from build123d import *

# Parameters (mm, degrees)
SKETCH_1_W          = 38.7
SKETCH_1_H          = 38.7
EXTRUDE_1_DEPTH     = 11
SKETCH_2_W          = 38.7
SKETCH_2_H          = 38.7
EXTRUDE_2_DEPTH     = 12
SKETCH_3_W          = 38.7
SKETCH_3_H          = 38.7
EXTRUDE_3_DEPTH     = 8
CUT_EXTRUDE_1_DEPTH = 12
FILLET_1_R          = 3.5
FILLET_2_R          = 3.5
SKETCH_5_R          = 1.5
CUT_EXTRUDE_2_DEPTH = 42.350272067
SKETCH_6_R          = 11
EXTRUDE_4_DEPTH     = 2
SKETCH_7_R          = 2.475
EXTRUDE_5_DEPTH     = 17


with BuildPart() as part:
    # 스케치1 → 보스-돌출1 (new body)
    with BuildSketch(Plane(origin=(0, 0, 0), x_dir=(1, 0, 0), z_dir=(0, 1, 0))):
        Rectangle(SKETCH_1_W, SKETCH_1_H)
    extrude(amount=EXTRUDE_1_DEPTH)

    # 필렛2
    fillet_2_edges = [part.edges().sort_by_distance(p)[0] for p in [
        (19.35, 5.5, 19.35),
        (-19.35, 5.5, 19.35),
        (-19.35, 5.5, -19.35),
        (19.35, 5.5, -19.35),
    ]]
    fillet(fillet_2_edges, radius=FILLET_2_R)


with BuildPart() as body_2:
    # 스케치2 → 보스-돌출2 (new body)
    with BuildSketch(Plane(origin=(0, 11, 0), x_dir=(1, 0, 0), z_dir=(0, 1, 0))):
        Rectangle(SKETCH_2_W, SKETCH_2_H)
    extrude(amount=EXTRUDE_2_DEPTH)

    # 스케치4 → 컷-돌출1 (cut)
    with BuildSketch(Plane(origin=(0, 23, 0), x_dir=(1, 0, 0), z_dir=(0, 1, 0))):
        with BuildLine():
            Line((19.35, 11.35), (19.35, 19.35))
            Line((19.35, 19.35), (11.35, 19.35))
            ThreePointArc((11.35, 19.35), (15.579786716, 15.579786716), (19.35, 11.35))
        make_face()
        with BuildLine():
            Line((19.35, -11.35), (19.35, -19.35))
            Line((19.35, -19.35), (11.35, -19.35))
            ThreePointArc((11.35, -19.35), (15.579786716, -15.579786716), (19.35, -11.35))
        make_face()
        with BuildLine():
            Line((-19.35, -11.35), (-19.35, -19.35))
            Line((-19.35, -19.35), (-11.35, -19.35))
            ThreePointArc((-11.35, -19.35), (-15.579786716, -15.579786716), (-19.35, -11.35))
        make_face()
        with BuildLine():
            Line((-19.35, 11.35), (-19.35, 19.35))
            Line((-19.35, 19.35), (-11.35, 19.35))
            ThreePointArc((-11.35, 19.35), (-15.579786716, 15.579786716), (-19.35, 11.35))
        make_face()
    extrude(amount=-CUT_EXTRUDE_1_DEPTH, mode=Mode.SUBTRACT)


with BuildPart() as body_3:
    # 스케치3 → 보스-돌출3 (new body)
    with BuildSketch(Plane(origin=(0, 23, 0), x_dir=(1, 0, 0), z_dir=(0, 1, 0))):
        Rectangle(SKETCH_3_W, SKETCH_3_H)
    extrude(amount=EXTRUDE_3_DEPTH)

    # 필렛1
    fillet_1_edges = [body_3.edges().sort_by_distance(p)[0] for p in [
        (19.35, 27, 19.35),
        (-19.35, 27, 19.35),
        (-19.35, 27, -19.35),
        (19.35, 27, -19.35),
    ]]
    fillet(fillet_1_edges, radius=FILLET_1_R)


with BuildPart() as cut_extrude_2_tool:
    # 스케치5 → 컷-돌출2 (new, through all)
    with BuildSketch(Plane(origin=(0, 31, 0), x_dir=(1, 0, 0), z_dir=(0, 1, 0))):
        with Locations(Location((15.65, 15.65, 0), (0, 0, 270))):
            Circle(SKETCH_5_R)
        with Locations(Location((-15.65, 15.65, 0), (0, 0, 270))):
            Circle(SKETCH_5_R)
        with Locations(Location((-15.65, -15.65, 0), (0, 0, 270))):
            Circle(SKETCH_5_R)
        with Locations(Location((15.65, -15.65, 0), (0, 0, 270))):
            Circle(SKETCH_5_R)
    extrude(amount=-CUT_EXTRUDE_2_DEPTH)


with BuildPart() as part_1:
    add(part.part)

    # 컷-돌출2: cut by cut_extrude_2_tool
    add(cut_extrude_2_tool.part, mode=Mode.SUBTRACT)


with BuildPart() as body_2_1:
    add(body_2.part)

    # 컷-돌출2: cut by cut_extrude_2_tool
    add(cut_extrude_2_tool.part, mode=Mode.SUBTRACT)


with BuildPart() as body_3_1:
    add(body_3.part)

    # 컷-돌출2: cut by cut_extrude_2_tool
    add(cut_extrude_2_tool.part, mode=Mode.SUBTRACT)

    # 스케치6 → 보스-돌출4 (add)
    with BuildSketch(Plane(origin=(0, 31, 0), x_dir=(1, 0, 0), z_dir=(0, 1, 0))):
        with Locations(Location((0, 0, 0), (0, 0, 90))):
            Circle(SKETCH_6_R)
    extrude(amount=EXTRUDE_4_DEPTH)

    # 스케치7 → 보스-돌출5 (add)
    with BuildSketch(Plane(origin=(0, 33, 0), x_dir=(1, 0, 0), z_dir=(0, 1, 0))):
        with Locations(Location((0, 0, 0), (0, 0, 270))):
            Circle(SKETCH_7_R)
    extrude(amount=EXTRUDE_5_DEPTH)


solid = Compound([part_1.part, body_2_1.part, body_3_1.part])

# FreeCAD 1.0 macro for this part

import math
import FreeCAD as App
import Part
import Sketcher

V = App.Vector
Q = App.Units.Quantity


def edges_at(feature, points):
    """Names of the edges that pass closest to the given points."""
    edges = feature.Shape.Edges
    near = lambda p: min(range(len(edges)), key=lambda i: edges[i].distToShape(Part.Vertex(*p))[0])
    return sorted({f"Edge{near(p) + 1}" for p in points})

doc = App.newDocument("Part")
params = doc.addObject("Spreadsheet::Sheet", "Params")
for row, (alias, value) in enumerate([
    ("sketch1_width", "38.7 mm"),
    ("pad1_length", "11 mm"),
    ("fillet_radius", "3.5 mm"),
    ("sketch2_width", "38.7 mm"),
    ("pad2_length", "12 mm"),
    ("sketch3_width", "8 mm"),
    ("pocket1_length", "12 mm"),
    ("sketch4_width", "38.7 mm"),
    ("pad3_length", "8 mm"),
    ("fillet2_radius", "3.5 mm"),
    ("sketch5_diameter", "3 mm"),
    ("pad4_length", "42.350272 mm"),
    ("sketch6_diameter", "22 mm"),
    ("pad5_length", "2 mm"),
    ("sketch7_diameter", "4.95 mm"),
    ("pad6_length", "17 mm"),
], start=1):
    params.set(f"A{row}", alias)
    params.set(f"B{row}", "=" + value)
    params.setAlias(f"B{row}", alias)

body = doc.addObject("PartDesign::Body", "Body")

# Sketch on XZ plane
sketch1 = body.newObject("Sketcher::SketchObject", "Sketch")
sketch1.AttachmentSupport = (doc.getObject("XZ_Plane"), [""])
sketch1.MapMode = "FlatFace"
sketch1.addGeometry(Part.LineSegment(V(-19, -19, 0), V(-19, 19, 0)), False)
sketch1.addGeometry(Part.LineSegment(V(-19, 19, 0), V(19, 19, 0)), False)
sketch1.addGeometry(Part.LineSegment(V(19, 19, 0), V(19, -19, 0)), False)
sketch1.addGeometry(Part.LineSegment(V(19, -19, 0), V(-19, -19, 0)), False)
sketch1.addConstraint(Sketcher.Constraint("Coincident", 0, 2, 1, 1))
sketch1.addConstraint(Sketcher.Constraint("Coincident", 1, 2, 2, 1))
sketch1.addConstraint(Sketcher.Constraint("Coincident", 2, 2, 3, 1))
sketch1.addConstraint(Sketcher.Constraint("Coincident", 3, 2, 0, 1))
sketch1.addConstraint(Sketcher.Constraint("Vertical", 0))
sketch1.addConstraint(Sketcher.Constraint("Horizontal", 1))
sketch1.addConstraint(Sketcher.Constraint("Vertical", 2))
sketch1.addConstraint(Sketcher.Constraint("Horizontal", 3))
sketch1.addConstraint(Sketcher.Constraint("Symmetric", 0, 2, 2, 2, -1, 1))
sketch1.addConstraint(Sketcher.Constraint("Equal", 3, 0))
sketch1.addConstraint(Sketcher.Constraint("DistanceX", 1, 1, 1, 2, Q("38.7 mm")))
sketch1.setExpression("Constraints[10]", "Params.sketch1_width")
pad1 = body.newObject("PartDesign::Pad", "Pad")
pad1.Profile = sketch1
pad1.setExpression("Length", "Params.pad1_length")
pad1.Reversed = True
doc.recompute()

fillet = body.newObject("PartDesign::Fillet", "Fillet")
fillet.Base = (pad1, edges_at(pad1, [
    (19.35, 5.5, 19.35),
    (-19.35, 5.5, 19.35),
    (-19.35, 5.5, -19.35),
    (19.35, 5.5, -19.35),
]))
fillet.setExpression("Radius", "Params.fillet_radius")
body2 = doc.addObject("PartDesign::Body", "Body001")

# Sketch on XZ plane
sketch2 = body2.newObject("Sketcher::SketchObject", "Sketch001")
sketch2.AttachmentSupport = (doc.getObject("XZ_Plane001"), [""])
sketch2.MapMode = "FlatFace"
sketch2.AttachmentOffset = App.Placement(V(0, 0, -11), App.Rotation())
sketch2.addGeometry(Part.LineSegment(V(-19, -19, 0), V(-19, 19, 0)), False)
sketch2.addGeometry(Part.LineSegment(V(-19, 19, 0), V(19, 19, 0)), False)
sketch2.addGeometry(Part.LineSegment(V(19, 19, 0), V(19, -19, 0)), False)
sketch2.addGeometry(Part.LineSegment(V(19, -19, 0), V(-19, -19, 0)), False)
sketch2.addConstraint(Sketcher.Constraint("Coincident", 0, 2, 1, 1))
sketch2.addConstraint(Sketcher.Constraint("Coincident", 1, 2, 2, 1))
sketch2.addConstraint(Sketcher.Constraint("Coincident", 2, 2, 3, 1))
sketch2.addConstraint(Sketcher.Constraint("Coincident", 3, 2, 0, 1))
sketch2.addConstraint(Sketcher.Constraint("Vertical", 0))
sketch2.addConstraint(Sketcher.Constraint("Horizontal", 1))
sketch2.addConstraint(Sketcher.Constraint("Vertical", 2))
sketch2.addConstraint(Sketcher.Constraint("Horizontal", 3))
sketch2.addConstraint(Sketcher.Constraint("Symmetric", 0, 2, 2, 2, -1, 1))
sketch2.addConstraint(Sketcher.Constraint("Equal", 3, 0))
sketch2.addConstraint(Sketcher.Constraint("DistanceX", 1, 1, 1, 2, Q("38.7 mm")))
sketch2.setExpression("Constraints[10]", "Params.sketch2_width")
pad2 = body2.newObject("PartDesign::Pad", "Pad001")
pad2.Profile = sketch2
pad2.setExpression("Length", "Params.pad2_length")
pad2.Reversed = True

# Sketch on XZ plane
sketch3 = body2.newObject("Sketcher::SketchObject", "Sketch002")
sketch3.AttachmentSupport = (doc.getObject("XZ_Plane001"), [""])
sketch3.MapMode = "FlatFace"
sketch3.AttachmentOffset = App.Placement(V(0, 0, -23), App.Rotation())
sketch3.addGeometry(Part.LineSegment(V(19, -11, 0), V(19, -19, 0)), False)
sketch3.addGeometry(Part.LineSegment(V(19, -19, 0), V(11, -19, 0)), False)
sketch3.addGeometry(Part.ArcOfCircle(Part.Circle(V(-19, 19, 0), V(0, 0, 1), 49), math.radians(-51.58), math.radians(-38.42)), False)
sketch3.addGeometry(Part.LineSegment(V(19, 19, 0), V(19, 11, 0)), False)
sketch3.addGeometry(Part.ArcOfCircle(Part.Circle(V(-19, -19, 0), V(0, 0, 1), 49), math.radians(38.42), math.radians(51.58)), False)
sketch3.addGeometry(Part.LineSegment(V(11, 19, 0), V(19, 19, 0)), False)
sketch3.addGeometry(Part.LineSegment(V(-19, 11, 0), V(-19, 19, 0)), False)
sketch3.addGeometry(Part.LineSegment(V(-19, 19, 0), V(-11, 19, 0)), False)
sketch3.addGeometry(Part.ArcOfCircle(Part.Circle(V(19, -19, 0), V(0, 0, 1), 49), math.radians(128.42), math.radians(141.58)), False)
sketch3.addGeometry(Part.LineSegment(V(-19, -19, 0), V(-19, -11, 0)), False)
sketch3.addGeometry(Part.ArcOfCircle(Part.Circle(V(19, 19, 0), V(0, 0, 1), 49), math.radians(-141.58), math.radians(-128.42)), False)
sketch3.addGeometry(Part.LineSegment(V(-11, -19, 0), V(-19, -19, 0)), False)
sketch3.addConstraint(Sketcher.Constraint("Coincident", 0, 2, 1, 1))
sketch3.addConstraint(Sketcher.Constraint("Coincident", 1, 2, 2, 1))
sketch3.addConstraint(Sketcher.Constraint("Coincident", 2, 2, 0, 1))
sketch3.addConstraint(Sketcher.Constraint("Coincident", 3, 2, 4, 1))
sketch3.addConstraint(Sketcher.Constraint("Coincident", 4, 2, 5, 1))
sketch3.addConstraint(Sketcher.Constraint("Coincident", 5, 2, 3, 1))
sketch3.addConstraint(Sketcher.Constraint("Coincident", 6, 2, 7, 1))
sketch3.addConstraint(Sketcher.Constraint("Coincident", 7, 2, 8, 1))
sketch3.addConstraint(Sketcher.Constraint("Coincident", 8, 2, 6, 1))
sketch3.addConstraint(Sketcher.Constraint("Coincident", 9, 2, 10, 1))
sketch3.addConstraint(Sketcher.Constraint("Coincident", 10, 2, 11, 1))
sketch3.addConstraint(Sketcher.Constraint("Coincident", 11, 2, 9, 1))
sketch3.addConstraint(Sketcher.Constraint("Vertical", 0))
sketch3.addConstraint(Sketcher.Constraint("Horizontal", 1))
sketch3.addConstraint(Sketcher.Constraint("Vertical", 3))
sketch3.addConstraint(Sketcher.Constraint("Horizontal", 5))
sketch3.addConstraint(Sketcher.Constraint("Vertical", 6))
sketch3.addConstraint(Sketcher.Constraint("Horizontal", 7))
sketch3.addConstraint(Sketcher.Constraint("Vertical", 9))
sketch3.addConstraint(Sketcher.Constraint("Horizontal", 11))
sketch3.addConstraint(Sketcher.Constraint("Coincident", 0, 2, 8, 3))
sketch3.addConstraint(Sketcher.Constraint("Coincident", 5, 2, 10, 3))
sketch3.addConstraint(Sketcher.Constraint("Coincident", 6, 2, 2, 3))
sketch3.addConstraint(Sketcher.Constraint("Coincident", 11, 2, 4, 3))
sketch3.addConstraint(Sketcher.Constraint("Equal", 2, 4))
sketch3.addConstraint(Sketcher.Constraint("Equal", 4, 8))
sketch3.addConstraint(Sketcher.Constraint("Equal", 8, 10))
sketch3.addConstraint(Sketcher.Constraint("Symmetric", 2, 3, 8, 3, -1, 1))
sketch3.addConstraint(Sketcher.Constraint("Symmetric", 4, 3, 10, 3, -1, 1))
sketch3.addConstraint(Sketcher.Constraint("Symmetric", 4, 3, 8, 3, -2))
sketch3.addConstraint(Sketcher.Constraint("Equal", 11, 0))
sketch3.addConstraint(Sketcher.Constraint("DistanceX", 1, 2, 1, 1, Q("8 mm")))
sketch3.addConstraint(Sketcher.Constraint("DistanceY", 4, 3, 2, 3, Q("38.7 mm")))
sketch3.setExpression("Constraints[31]", "Params.sketch3_width")
pocket1 = body2.newObject("PartDesign::Pocket", "Pocket")
pocket1.Profile = sketch3
pocket1.setExpression("Length", "Params.pocket1_length")
pocket1.Reversed = True
body3 = doc.addObject("PartDesign::Body", "Body002")

# Sketch on XZ plane
sketch4 = body3.newObject("Sketcher::SketchObject", "Sketch003")
sketch4.AttachmentSupport = (doc.getObject("XZ_Plane002"), [""])
sketch4.MapMode = "FlatFace"
sketch4.AttachmentOffset = App.Placement(V(0, 0, -23), App.Rotation())
sketch4.addGeometry(Part.LineSegment(V(-19, -19, 0), V(-19, 19, 0)), False)
sketch4.addGeometry(Part.LineSegment(V(-19, 19, 0), V(19, 19, 0)), False)
sketch4.addGeometry(Part.LineSegment(V(19, 19, 0), V(19, -19, 0)), False)
sketch4.addGeometry(Part.LineSegment(V(19, -19, 0), V(-19, -19, 0)), False)
sketch4.addConstraint(Sketcher.Constraint("Coincident", 0, 2, 1, 1))
sketch4.addConstraint(Sketcher.Constraint("Coincident", 1, 2, 2, 1))
sketch4.addConstraint(Sketcher.Constraint("Coincident", 2, 2, 3, 1))
sketch4.addConstraint(Sketcher.Constraint("Coincident", 3, 2, 0, 1))
sketch4.addConstraint(Sketcher.Constraint("Vertical", 0))
sketch4.addConstraint(Sketcher.Constraint("Horizontal", 1))
sketch4.addConstraint(Sketcher.Constraint("Vertical", 2))
sketch4.addConstraint(Sketcher.Constraint("Horizontal", 3))
sketch4.addConstraint(Sketcher.Constraint("Symmetric", 0, 2, 2, 2, -1, 1))
sketch4.addConstraint(Sketcher.Constraint("Equal", 3, 0))
sketch4.addConstraint(Sketcher.Constraint("DistanceX", 1, 1, 1, 2, Q("38.7 mm")))
sketch4.setExpression("Constraints[10]", "Params.sketch4_width")
pad3 = body3.newObject("PartDesign::Pad", "Pad002")
pad3.Profile = sketch4
pad3.setExpression("Length", "Params.pad3_length")
pad3.Reversed = True
doc.recompute()

fillet2 = body3.newObject("PartDesign::Fillet", "Fillet001")
fillet2.Base = (pad3, edges_at(pad3, [
    (19.35, 27, 19.35),
    (-19.35, 27, 19.35),
    (-19.35, 27, -19.35),
    (19.35, 27, -19.35),
]))
fillet2.setExpression("Radius", "Params.fillet2_radius")
body4 = doc.addObject("PartDesign::Body", "Body003")
body4.AllowCompound = True

# Sketch on XZ plane
sketch5 = body4.newObject("Sketcher::SketchObject", "Sketch004")
sketch5.AttachmentSupport = (doc.getObject("XZ_Plane003"), [""])
sketch5.MapMode = "FlatFace"
sketch5.AttachmentOffset = App.Placement(V(0, 0, -31), App.Rotation())
sketch5.addGeometry(Part.Circle(V(15.7, -15.7, 0), V(0, 0, 1), 1.5), False)
sketch5.addGeometry(Part.Circle(V(-15.7, -15.7, 0), V(0, 0, 1), 1.5), False)
sketch5.addGeometry(Part.Circle(V(-15.7, 15.7, 0), V(0, 0, 1), 1.5), False)
sketch5.addGeometry(Part.Circle(V(15.7, 15.7, 0), V(0, 0, 1), 1.5), False)
sketch5.addConstraint(Sketcher.Constraint("Equal", 0, 1))
sketch5.addConstraint(Sketcher.Constraint("Equal", 1, 2))
sketch5.addConstraint(Sketcher.Constraint("Equal", 2, 3))
sketch5.addConstraint(Sketcher.Constraint("Symmetric", 0, 3, 2, 3, -1, 1))
sketch5.addConstraint(Sketcher.Constraint("Symmetric", 1, 3, 3, 3, -1, 1))
sketch5.addConstraint(Sketcher.Constraint("Symmetric", 0, 3, 1, 3, -2))
sketch5.addConstraint(Sketcher.Constraint("Diameter", 0, Q("3 mm")))
sketch5.addConstraint(Sketcher.Constraint("DistanceX", 1, 3, 0, 3, Q("31.3 mm")))
sketch5.addConstraint(Sketcher.Constraint("DistanceY", 1, 3, 2, 3, Q("31.3 mm")))
sketch5.setExpression("Constraints[6]", "Params.sketch5_diameter")
pad4 = body4.newObject("PartDesign::Pad", "Pad003")
pad4.Profile = sketch5
pad4.setExpression("Length", "Params.pad4_length")
doc.recompute()

body5 = doc.addObject("PartDesign::Body", "Body004")
body5.BaseFeature = body4
boolean = body.newObject("PartDesign::Boolean", "Boolean")
boolean.Type = "Cut"
boolean.addObjects([body5])
doc.recompute()

body6 = doc.addObject("PartDesign::Body", "Body005")
body6.BaseFeature = body4
boolean2 = body2.newObject("PartDesign::Boolean", "Boolean001")
boolean2.Type = "Cut"
boolean2.addObjects([body6])
doc.recompute()

boolean3 = body3.newObject("PartDesign::Boolean", "Boolean002")
boolean3.Type = "Cut"
boolean3.addObjects([body4])

# Sketch on XZ plane
sketch6 = body3.newObject("Sketcher::SketchObject", "Sketch005")
sketch6.AttachmentSupport = (doc.getObject("XZ_Plane002"), [""])
sketch6.MapMode = "FlatFace"
sketch6.AttachmentOffset = App.Placement(V(0, 0, -31), App.Rotation())
sketch6.addGeometry(Part.Circle(V(0, 0, 0), V(0, 0, 1), 11), False)
sketch6.addConstraint(Sketcher.Constraint("Coincident", 0, 3, -1, 1))
sketch6.addConstraint(Sketcher.Constraint("Diameter", 0, Q("22 mm")))
sketch6.setExpression("Constraints[1]", "Params.sketch6_diameter")
pad5 = body3.newObject("PartDesign::Pad", "Pad004")
pad5.Profile = sketch6
pad5.setExpression("Length", "Params.pad5_length")
pad5.Reversed = True

# Sketch on XZ plane
sketch7 = body3.newObject("Sketcher::SketchObject", "Sketch006")
sketch7.AttachmentSupport = (doc.getObject("XZ_Plane002"), [""])
sketch7.MapMode = "FlatFace"
sketch7.AttachmentOffset = App.Placement(V(0, 0, -33), App.Rotation())
sketch7.addGeometry(Part.Circle(V(0, 0, 0), V(0, 0, 1), 2.5), False)
sketch7.addConstraint(Sketcher.Constraint("Coincident", 0, 3, -1, 1))
sketch7.addConstraint(Sketcher.Constraint("Diameter", 0, Q("4.95 mm")))
sketch7.setExpression("Constraints[1]", "Params.sketch7_diameter")
pad6 = body3.newObject("PartDesign::Pad", "Pad005")
pad6.Profile = sketch7
pad6.setExpression("Length", "Params.pad6_length")
pad6.Reversed = True

doc.recompute()
